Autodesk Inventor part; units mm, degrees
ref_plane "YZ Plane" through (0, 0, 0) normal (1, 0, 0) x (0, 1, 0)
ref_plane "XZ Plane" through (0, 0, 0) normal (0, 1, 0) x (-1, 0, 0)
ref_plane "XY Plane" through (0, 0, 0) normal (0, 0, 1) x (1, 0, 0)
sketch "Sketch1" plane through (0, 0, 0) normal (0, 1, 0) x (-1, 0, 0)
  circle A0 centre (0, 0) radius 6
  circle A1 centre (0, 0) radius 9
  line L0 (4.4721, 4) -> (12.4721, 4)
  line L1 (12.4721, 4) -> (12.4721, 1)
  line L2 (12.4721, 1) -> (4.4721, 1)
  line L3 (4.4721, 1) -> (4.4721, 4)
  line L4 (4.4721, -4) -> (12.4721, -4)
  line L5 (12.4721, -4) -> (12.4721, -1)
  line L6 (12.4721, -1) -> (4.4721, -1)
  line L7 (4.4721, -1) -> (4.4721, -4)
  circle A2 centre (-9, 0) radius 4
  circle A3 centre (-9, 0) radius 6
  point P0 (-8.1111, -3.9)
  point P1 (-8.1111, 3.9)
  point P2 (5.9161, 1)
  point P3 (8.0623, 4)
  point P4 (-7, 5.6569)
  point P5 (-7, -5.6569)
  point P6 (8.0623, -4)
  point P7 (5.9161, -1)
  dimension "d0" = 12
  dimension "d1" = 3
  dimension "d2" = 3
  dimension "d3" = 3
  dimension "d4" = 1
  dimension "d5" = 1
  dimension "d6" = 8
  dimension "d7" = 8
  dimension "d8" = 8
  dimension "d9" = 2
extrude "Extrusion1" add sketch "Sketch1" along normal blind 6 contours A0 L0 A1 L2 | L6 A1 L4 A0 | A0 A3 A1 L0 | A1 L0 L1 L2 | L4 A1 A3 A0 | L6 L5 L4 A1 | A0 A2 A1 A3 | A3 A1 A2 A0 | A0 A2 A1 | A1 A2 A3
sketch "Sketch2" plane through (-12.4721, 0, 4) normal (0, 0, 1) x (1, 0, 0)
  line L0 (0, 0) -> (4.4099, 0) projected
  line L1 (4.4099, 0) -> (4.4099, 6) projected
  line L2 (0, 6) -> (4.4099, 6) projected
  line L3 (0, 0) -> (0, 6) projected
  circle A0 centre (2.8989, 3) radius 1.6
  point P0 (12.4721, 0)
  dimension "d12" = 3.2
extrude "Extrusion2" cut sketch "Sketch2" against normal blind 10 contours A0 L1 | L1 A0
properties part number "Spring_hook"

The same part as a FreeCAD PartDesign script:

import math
import FreeCAD as App
import Part
import Sketcher
from FreeCAD import Vector
Q = App.Units.Quantity

doc = App.newDocument("Part")
body = doc.addObject("PartDesign::Body", "Body")

# Sketch on XZ plane
sketch1 = body.newObject("Sketcher::SketchObject", "Sketch")
sketch1.AttachmentSupport = (doc.getObject("XZ_Plane"), [""])
sketch1.MapMode = "FlatFace"
sketch1.addGeometry([
    Part.LineSegment(Vector(-5.91608, 1, 0), Vector(-12.4721, 1, 0)),  # 0
    Part.LineSegment(Vector(-12.4721, 1, 0), Vector(-12.4721, 4, 0)),  # 1
    Part.LineSegment(Vector(-12.4721, 4, 0), Vector(-8.062258, 4, 0)),  # 2
    Part.ArcOfCircle(Part.Circle(Vector(0, 0, 0), Vector(0, 0, 1), 9), math.radians(38.942441), math.radians(153.6122)),  # 3
    Part.ArcOfCircle(Part.Circle(Vector(9, 0, 0), Vector(0, 0, 1), 6), math.radians(-109.471221), math.radians(109.471221)),  # 4
    Part.ArcOfCircle(Part.Circle(Vector(0, 0, 0), Vector(0, 0, 1), 9), math.radians(-153.6122), math.radians(-38.942441)),  # 5
    Part.LineSegment(Vector(-8.062258, -4, 0), Vector(-12.4721, -4, 0)),  # 6
    Part.LineSegment(Vector(-12.4721, -4, 0), Vector(-12.4721, -1, 0)),  # 7
    Part.LineSegment(Vector(-12.4721, -1, 0), Vector(-5.91608, -1, 0)),  # 8
    Part.ArcOfCircle(Part.Circle(Vector(0, 0, 0), Vector(0, 0, 1), 6), math.radians(-170.405932), math.radians(170.405932)),  # 9
    Part.ArcOfCircle(Part.Circle(Vector(0, 0, 0), Vector(0, 0, 1), 9), math.radians(-25.679177), math.radians(25.679177)),  # 10
    Part.ArcOfCircle(Part.Circle(Vector(9, 0, 0), Vector(0, 0, 1), 4), math.radians(-102.839588), math.radians(102.839588)),  # 11
], False)
sketch1.addConstraint([
    Sketcher.Constraint("Coincident", 0, 2, 1, 1),
    Sketcher.Constraint("Coincident", 1, 2, 2, 1),
    Sketcher.Constraint("Coincident", 2, 2, 3, 2),
    Sketcher.Constraint("Coincident", 3, 1, 4, 2),
    Sketcher.Constraint("Coincident", 4, 1, 5, 2),
    Sketcher.Constraint("Coincident", 5, 1, 6, 1),
    Sketcher.Constraint("Coincident", 6, 2, 7, 1),
    Sketcher.Constraint("Coincident", 7, 2, 8, 1),
    Sketcher.Constraint("Coincident", 8, 2, 9, 1),
    Sketcher.Constraint("Coincident", 9, 2, 0, 1),
    Sketcher.Constraint("Coincident", 10, 1, 11, 1),
    Sketcher.Constraint("Coincident", 11, 2, 10, 2),
    Sketcher.Constraint("Horizontal", 0),
    Sketcher.Constraint("Vertical", 1),
    Sketcher.Constraint("Horizontal", 2),
    Sketcher.Constraint("Horizontal", 6),
    Sketcher.Constraint("Vertical", 7),
    Sketcher.Constraint("Horizontal", 8),
    Sketcher.Constraint("Coincident", 3, 3, -1, 1),
    Sketcher.Constraint("Coincident", 5, 3, -1, 1),
    Sketcher.Constraint("Coincident", 9, 3, -1, 1),
    Sketcher.Constraint("Coincident", 10, 3, -1, 1),
    Sketcher.Constraint("Coincident", 11, 3, 4, 3),
    Sketcher.Constraint("Equal", 3, 5),
    Sketcher.Constraint("Equal", 4, 9),
    Sketcher.Constraint("Equal", 5, 10),
    Sketcher.Constraint("Symmetric", 1, 2, 6, 2, -1),
    Sketcher.Constraint("PointOnObject", 4, 3, -1),
    Sketcher.Constraint("Vertical", 8, 2, 9, 2),
    Sketcher.Constraint("Radius", 4, Q("6 mm")),
    Sketcher.Constraint("Radius", 11, Q("4 mm")),
    Sketcher.Constraint("DistanceY", 1, 1, 1, 2, Q("3 mm")),
    Sketcher.Constraint("DistanceY", -1, 1, 0, 2, Q("1 mm")),
    Sketcher.Constraint("Radius", 3, Q("9 mm")),
    Sketcher.Constraint("DistanceX", 3, 1, 4, 3, Q("2 mm")),
    Sketcher.Constraint("DistanceX", 0, 2, 0, 1, Q("6.556 mm")),
])
pad1 = body.newObject("PartDesign::Pad", "Pad")
pad1.Profile = sketch1
pad1.Length = 6
pad1.Reversed = True

# Sketch on XY plane
sketch2 = body.newObject("Sketcher::SketchObject", "Sketch001")
sketch2.AttachmentSupport = (doc.getObject("XY_Plane"), [""])
sketch2.MapMode = "FlatFace"
sketch2.AttachmentOffset = App.Placement(Vector(0, 0, 4), App.Rotation())
sketch2.addGeometry(Part.Circle(Vector(-9.5732, 3, 0), Vector(0, 0, 1), 1.6), False)
sketch2.addConstraint([
    Sketcher.Constraint("Diameter", 0, Q("3.2 mm")),
    Sketcher.Constraint("DistanceY", -1, 1, 0, 3, Q("3 mm")),
    Sketcher.Constraint("DistanceX", 0, 3, -1, 1, Q("9.5732 mm")),
])
pocket1 = body.newObject("PartDesign::Pocket", "Pocket")
pocket1.Profile = sketch2
pocket1.Length = 10

doc.recompute()
